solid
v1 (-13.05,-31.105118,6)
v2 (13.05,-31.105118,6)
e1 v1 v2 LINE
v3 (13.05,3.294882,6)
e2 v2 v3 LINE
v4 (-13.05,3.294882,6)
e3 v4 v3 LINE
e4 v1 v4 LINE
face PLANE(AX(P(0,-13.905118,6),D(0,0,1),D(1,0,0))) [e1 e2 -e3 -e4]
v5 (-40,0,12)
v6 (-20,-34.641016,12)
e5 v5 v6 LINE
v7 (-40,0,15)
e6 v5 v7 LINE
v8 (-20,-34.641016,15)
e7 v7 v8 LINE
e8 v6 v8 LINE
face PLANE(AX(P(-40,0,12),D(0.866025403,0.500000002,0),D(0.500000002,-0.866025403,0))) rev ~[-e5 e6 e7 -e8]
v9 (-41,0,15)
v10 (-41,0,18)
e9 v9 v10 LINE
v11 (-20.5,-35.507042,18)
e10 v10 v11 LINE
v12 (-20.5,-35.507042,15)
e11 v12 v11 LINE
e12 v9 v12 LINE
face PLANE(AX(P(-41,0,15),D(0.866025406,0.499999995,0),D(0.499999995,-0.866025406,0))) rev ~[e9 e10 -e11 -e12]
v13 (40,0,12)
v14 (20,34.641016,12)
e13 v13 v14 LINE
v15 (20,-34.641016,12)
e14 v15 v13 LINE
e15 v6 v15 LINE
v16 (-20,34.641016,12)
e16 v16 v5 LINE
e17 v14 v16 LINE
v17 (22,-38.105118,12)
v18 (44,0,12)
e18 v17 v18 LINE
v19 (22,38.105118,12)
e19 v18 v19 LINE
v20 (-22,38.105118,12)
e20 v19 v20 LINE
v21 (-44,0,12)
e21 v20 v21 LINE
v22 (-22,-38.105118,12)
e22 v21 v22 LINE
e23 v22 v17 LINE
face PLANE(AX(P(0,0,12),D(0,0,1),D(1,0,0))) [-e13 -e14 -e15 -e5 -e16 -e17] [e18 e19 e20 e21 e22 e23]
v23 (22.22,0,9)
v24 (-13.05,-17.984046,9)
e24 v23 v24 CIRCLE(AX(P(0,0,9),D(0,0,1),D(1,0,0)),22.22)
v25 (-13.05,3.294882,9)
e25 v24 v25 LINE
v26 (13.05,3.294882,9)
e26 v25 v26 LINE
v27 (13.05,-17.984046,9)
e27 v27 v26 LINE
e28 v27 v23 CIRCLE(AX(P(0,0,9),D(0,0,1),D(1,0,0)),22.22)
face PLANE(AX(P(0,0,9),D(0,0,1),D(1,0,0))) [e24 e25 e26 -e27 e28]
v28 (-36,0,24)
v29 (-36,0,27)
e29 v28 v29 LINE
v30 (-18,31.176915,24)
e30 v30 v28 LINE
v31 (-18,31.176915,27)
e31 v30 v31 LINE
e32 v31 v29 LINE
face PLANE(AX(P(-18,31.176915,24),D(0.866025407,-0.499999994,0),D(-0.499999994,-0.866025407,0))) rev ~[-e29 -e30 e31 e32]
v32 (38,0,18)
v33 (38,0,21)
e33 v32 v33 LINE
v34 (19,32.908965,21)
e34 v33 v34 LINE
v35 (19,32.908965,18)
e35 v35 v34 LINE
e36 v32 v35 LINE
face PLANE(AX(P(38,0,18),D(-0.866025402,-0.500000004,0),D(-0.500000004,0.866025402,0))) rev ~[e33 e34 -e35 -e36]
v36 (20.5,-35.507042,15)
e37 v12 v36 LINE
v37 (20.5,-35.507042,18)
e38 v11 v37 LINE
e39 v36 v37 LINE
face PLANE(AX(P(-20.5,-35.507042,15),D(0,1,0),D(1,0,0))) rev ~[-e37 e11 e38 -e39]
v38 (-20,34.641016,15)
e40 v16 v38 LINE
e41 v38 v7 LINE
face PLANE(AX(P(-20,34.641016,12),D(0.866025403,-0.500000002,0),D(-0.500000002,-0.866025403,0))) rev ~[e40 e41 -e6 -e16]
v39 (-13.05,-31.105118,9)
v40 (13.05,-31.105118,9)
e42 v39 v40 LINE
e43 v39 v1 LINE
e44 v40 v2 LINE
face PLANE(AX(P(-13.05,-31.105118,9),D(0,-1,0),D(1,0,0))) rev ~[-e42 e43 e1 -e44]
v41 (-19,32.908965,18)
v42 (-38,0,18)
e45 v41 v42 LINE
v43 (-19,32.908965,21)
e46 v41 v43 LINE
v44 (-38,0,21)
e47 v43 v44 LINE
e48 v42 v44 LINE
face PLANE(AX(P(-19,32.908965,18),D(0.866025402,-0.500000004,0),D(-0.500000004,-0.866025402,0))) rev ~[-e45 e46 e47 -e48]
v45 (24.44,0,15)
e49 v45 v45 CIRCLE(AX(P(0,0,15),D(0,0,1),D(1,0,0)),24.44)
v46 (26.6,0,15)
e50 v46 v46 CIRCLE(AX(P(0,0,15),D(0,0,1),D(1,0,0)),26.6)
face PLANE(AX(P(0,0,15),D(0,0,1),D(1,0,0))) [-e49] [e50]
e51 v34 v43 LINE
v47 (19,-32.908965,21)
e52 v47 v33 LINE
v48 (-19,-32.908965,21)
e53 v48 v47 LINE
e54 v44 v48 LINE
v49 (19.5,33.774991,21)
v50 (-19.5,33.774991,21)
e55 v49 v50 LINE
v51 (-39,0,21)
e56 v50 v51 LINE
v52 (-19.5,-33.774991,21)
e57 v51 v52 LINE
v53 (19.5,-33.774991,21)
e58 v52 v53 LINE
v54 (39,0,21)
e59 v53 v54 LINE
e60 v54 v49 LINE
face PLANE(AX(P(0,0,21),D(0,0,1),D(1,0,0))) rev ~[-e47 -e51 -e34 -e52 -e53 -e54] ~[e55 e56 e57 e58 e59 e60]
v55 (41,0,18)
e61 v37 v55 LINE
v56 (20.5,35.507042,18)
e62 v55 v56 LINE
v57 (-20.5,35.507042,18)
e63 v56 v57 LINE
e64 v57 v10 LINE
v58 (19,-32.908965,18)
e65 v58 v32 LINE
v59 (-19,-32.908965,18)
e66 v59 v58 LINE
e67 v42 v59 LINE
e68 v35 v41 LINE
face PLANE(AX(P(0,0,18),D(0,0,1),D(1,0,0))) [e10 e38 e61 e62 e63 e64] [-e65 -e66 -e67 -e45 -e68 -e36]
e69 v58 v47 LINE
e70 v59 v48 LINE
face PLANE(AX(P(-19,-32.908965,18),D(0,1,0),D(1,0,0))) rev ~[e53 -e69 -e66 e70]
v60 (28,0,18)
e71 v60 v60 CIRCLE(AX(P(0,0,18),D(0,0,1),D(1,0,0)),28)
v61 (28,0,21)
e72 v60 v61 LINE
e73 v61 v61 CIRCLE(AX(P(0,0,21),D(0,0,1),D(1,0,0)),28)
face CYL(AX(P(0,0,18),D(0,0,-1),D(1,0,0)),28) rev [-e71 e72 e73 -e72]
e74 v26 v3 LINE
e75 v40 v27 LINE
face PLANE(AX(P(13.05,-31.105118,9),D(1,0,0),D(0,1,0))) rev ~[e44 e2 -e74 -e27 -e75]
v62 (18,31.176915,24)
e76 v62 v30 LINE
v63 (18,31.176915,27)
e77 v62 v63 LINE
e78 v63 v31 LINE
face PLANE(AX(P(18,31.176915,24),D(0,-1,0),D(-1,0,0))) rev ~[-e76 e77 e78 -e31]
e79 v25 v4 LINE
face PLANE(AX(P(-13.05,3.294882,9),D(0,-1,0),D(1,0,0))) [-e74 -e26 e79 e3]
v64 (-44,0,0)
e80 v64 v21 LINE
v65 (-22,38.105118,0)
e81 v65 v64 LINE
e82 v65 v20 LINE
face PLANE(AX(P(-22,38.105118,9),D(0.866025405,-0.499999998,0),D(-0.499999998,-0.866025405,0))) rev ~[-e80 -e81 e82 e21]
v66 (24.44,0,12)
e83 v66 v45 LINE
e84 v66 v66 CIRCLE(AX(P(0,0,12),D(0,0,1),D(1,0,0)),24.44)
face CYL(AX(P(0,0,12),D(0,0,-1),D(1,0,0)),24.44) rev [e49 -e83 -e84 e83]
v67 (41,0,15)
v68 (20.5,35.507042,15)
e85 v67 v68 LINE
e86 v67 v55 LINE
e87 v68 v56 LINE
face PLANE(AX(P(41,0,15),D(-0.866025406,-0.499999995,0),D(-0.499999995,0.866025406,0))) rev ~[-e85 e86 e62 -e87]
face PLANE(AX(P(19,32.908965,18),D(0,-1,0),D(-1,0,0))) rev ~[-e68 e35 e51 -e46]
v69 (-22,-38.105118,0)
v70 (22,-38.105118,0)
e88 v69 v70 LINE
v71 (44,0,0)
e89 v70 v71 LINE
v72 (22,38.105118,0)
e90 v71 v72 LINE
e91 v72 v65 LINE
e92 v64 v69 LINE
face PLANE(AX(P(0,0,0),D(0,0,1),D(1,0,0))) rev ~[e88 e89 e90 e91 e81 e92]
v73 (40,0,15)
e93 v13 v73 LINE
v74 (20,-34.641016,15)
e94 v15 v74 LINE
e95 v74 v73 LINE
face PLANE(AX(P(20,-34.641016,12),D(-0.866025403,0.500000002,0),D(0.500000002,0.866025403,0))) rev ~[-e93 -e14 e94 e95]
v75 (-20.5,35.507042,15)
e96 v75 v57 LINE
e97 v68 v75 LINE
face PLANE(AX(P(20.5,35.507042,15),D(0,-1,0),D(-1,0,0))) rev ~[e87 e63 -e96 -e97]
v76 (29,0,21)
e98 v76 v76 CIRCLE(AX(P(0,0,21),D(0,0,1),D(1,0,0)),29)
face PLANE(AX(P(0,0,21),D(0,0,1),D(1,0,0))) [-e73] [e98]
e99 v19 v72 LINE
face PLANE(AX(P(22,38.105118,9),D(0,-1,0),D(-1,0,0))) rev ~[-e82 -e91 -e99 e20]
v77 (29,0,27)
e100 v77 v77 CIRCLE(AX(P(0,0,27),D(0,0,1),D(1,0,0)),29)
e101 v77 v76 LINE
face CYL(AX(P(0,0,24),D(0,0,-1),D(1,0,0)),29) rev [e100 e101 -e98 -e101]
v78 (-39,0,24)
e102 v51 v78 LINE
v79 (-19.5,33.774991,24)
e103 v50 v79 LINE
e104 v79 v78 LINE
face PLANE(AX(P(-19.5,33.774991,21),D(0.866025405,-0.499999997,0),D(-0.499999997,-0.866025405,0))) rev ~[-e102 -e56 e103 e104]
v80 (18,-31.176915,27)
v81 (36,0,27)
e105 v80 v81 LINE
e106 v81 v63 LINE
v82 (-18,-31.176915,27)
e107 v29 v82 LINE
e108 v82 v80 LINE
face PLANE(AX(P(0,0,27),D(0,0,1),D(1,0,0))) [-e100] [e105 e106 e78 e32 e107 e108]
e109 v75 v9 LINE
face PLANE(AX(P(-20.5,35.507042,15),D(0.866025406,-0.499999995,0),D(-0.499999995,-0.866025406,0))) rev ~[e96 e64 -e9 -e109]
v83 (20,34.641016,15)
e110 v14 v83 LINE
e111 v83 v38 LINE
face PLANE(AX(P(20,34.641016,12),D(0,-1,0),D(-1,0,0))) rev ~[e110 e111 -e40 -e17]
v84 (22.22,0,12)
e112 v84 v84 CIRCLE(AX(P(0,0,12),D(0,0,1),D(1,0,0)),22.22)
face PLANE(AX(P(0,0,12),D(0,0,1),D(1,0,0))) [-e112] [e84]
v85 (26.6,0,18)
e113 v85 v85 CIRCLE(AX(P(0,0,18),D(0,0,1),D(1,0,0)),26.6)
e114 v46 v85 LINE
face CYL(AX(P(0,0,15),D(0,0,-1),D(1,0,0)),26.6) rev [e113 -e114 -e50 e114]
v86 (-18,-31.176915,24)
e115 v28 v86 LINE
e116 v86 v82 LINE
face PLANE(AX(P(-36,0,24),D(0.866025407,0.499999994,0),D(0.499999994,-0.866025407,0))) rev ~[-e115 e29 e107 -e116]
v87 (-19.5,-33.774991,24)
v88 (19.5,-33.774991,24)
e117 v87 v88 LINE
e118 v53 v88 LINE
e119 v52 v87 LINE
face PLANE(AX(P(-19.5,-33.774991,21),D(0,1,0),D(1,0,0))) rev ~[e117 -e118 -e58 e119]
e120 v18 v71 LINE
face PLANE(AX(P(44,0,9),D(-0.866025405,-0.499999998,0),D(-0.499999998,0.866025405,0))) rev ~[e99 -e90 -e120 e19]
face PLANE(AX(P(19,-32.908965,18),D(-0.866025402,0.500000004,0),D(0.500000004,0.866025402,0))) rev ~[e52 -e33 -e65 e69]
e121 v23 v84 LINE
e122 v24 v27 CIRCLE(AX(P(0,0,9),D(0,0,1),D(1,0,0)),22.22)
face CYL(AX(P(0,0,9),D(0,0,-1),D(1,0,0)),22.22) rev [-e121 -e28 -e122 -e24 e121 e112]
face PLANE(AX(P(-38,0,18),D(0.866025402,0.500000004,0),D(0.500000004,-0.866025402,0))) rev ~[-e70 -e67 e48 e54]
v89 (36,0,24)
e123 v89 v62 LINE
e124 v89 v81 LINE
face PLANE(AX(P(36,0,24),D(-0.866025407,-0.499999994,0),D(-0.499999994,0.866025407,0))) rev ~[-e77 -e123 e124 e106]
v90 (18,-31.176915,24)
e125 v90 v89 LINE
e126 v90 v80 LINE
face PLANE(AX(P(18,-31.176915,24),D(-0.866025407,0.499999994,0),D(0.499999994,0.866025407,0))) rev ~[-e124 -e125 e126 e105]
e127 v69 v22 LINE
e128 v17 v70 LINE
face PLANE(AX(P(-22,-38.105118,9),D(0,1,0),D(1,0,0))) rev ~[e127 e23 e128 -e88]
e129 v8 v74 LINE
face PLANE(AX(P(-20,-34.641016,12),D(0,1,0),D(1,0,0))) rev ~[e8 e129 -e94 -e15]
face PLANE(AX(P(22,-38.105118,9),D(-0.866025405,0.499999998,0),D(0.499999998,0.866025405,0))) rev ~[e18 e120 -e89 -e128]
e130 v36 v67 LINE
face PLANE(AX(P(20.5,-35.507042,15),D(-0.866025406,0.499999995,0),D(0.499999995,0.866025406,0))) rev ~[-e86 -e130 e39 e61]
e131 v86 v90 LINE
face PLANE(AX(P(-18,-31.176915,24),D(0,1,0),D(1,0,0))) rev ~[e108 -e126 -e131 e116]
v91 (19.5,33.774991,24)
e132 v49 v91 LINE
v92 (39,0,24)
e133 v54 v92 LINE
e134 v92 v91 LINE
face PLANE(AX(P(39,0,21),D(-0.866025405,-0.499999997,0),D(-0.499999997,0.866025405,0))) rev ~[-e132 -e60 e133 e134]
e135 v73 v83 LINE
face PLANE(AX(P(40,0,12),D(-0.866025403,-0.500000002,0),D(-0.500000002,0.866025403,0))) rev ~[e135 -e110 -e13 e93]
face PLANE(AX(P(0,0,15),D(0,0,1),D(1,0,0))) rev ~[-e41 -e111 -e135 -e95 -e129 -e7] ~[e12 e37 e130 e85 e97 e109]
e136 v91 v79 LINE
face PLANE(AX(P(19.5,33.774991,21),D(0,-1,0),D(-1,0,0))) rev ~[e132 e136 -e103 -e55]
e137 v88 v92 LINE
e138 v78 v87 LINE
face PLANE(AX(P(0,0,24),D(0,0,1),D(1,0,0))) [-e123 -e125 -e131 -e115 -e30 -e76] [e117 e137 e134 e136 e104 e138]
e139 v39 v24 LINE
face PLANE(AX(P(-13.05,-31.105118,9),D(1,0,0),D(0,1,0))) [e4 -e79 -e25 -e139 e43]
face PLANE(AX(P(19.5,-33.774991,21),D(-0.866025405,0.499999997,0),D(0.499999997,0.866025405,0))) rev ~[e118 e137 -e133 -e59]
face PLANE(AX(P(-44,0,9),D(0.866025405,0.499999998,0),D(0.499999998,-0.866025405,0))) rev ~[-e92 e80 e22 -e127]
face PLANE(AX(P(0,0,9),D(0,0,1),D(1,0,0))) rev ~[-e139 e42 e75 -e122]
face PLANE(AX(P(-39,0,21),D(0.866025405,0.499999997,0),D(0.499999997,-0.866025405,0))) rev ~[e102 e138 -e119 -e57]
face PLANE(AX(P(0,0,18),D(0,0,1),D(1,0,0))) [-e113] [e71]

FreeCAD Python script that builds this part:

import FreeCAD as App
import Part
import Sketcher

V = App.Vector
Q = App.Units.Quantity


def add_polygon(sketch, points):
    """Adds a closed chain of lines whose ends are joined by coincident constraints."""
    first, n = sketch.GeometryCount, len(points)
    for a, b in zip(points, points[1:] + points[:1]):
        sketch.addGeometry(Part.LineSegment(App.Vector(*a, 0), App.Vector(*b, 0)), False)
    for i in range(n):
        sketch.addConstraint(Sketcher.Constraint("Coincident", first + i, 2, first + (i + 1) % n, 1))

doc = App.newDocument("Part")
body = doc.addObject("PartDesign::Body", "Body")

sketch1 = body.newObject("Sketcher::SketchObject", "Sketch")
sketch1.AttachmentSupport = (doc.getObject("XY_Plane"), [""])
sketch1.MapMode = "FlatFace"
add_polygon(sketch1, [(44, 0), (22, 38), (-22, 38), (-44, 0), (-22, -38), (22, -38)])
sketch1.addConstraint(Sketcher.Constraint("Horizontal", 1))
sketch1.addConstraint(Sketcher.Constraint("Horizontal", 4))
sketch1.addConstraint(Sketcher.Constraint("Symmetric", 0, 2, 3, 2, -1, 1))
sketch1.addConstraint(Sketcher.Constraint("Symmetric", 2, 2, 5, 2, -1, 1))
sketch1.addConstraint(Sketcher.Constraint("PointOnObject", 2, 2, -1))
sketch1.addConstraint(Sketcher.Constraint("Parallel", 2, 5))
sketch1.addConstraint(Sketcher.Constraint("Vertical", 1, 2, 3, 2))
sketch1.addConstraint(Sketcher.Constraint("DistanceX", 1, 2, 1, 1, Q("44 mm")))
sketch1.addConstraint(Sketcher.Constraint("Angle", 0, Q("120 deg")))
sketch1.addConstraint(Sketcher.Constraint("Distance", 0, Q("44 mm")))
pad1 = body.newObject("PartDesign::Pad", "Pad")
pad1.Profile = sketch1
pad1.Length = 9

sketch2 = body.newObject("Sketcher::SketchObject", "Sketch001")
sketch2.AttachmentSupport = (doc.getObject("XY_Plane"), [""])
sketch2.MapMode = "FlatFace"
sketch2.AttachmentOffset = App.Placement(V(0, 0, 9), App.Rotation())
add_polygon(sketch2, [(-13, 3), (-13, -31), (13, -31), (13, 3)])
sketch2.addConstraint(Sketcher.Constraint("Vertical", 0))
sketch2.addConstraint(Sketcher.Constraint("Horizontal", 1))
sketch2.addConstraint(Sketcher.Constraint("Vertical", 2))
sketch2.addConstraint(Sketcher.Constraint("Horizontal", 3))
sketch2.addConstraint(Sketcher.Constraint("DistanceX", 1, 1, 1, 2, Q("26.1 mm")))
sketch2.addConstraint(Sketcher.Constraint("DistanceY", 0, 2, 0, 1, Q("34.4 mm")))
sketch2.addConstraint(Sketcher.Constraint("DistanceX", 0, 2, -1, 1, Q("13.05 mm")))
sketch2.addConstraint(Sketcher.Constraint("DistanceY", 0, 2, -1, 1, Q("31.105118 mm")))
pocket1 = body.newObject("PartDesign::Pocket", "Pocket")
pocket1.Profile = sketch2
pocket1.Length = 3

sketch3 = body.newObject("Sketcher::SketchObject", "Sketch002")
sketch3.AttachmentSupport = (doc.getObject("XY_Plane"), [""])
sketch3.MapMode = "FlatFace"
sketch3.AttachmentOffset = App.Placement(V(0, 0, 9), App.Rotation())
add_polygon(sketch3, [(22, 38), (-22, 38), (-44, 0), (-22, -38), (22, -38), (44, 0)])
sketch3.addGeometry(Part.Circle(V(0, 0, 0), V(0, 0, 1), 22), False)
sketch3.addConstraint(Sketcher.Constraint("Horizontal", 0))
sketch3.addConstraint(Sketcher.Constraint("Horizontal", 3))
sketch3.addConstraint(Sketcher.Constraint("Coincident", 6, 3, -1, 1))
sketch3.addConstraint(Sketcher.Constraint("Symmetric", 0, 2, 3, 2, -1, 1))
sketch3.addConstraint(Sketcher.Constraint("Symmetric", 1, 2, 4, 2, -1, 1))
sketch3.addConstraint(Sketcher.Constraint("PointOnObject", 1, 2, -1))
sketch3.addConstraint(Sketcher.Constraint("Parallel", 2, 5))
sketch3.addConstraint(Sketcher.Constraint("Vertical", 0, 2, 2, 2))
sketch3.addConstraint(Sketcher.Constraint("Diameter", 6, Q("44.44 mm")))
sketch3.addConstraint(Sketcher.Constraint("DistanceX", 0, 2, 0, 1, Q("44 mm")))
sketch3.addConstraint(Sketcher.Constraint("Angle", 1, Q("-120 deg")))
sketch3.addConstraint(Sketcher.Constraint("Distance", 1, Q("44 mm")))
pad2 = body.newObject("PartDesign::Pad", "Pad001")
pad2.Profile = sketch3
pad2.Length = 3

sketch4 = body.newObject("Sketcher::SketchObject", "Sketch003")
sketch4.AttachmentSupport = (doc.getObject("XY_Plane"), [""])
sketch4.MapMode = "FlatFace"
sketch4.AttachmentOffset = App.Placement(V(0, 0, 12), App.Rotation())
add_polygon(sketch4, [(40, 0), (20, 35), (-20, 35), (-40, 0), (-20, -35), (20, -35)])
sketch4.addGeometry(Part.Circle(V(0, 0, 0), V(0, 0, 1), 24), False)
sketch4.addConstraint(Sketcher.Constraint("Horizontal", 1))
sketch4.addConstraint(Sketcher.Constraint("Horizontal", 4))
sketch4.addConstraint(Sketcher.Constraint("Coincident", 6, 3, -1, 1))
sketch4.addConstraint(Sketcher.Constraint("Symmetric", 0, 2, 3, 2, -1, 1))
sketch4.addConstraint(Sketcher.Constraint("Symmetric", 2, 2, 5, 2, -1, 1))
sketch4.addConstraint(Sketcher.Constraint("PointOnObject", 2, 2, -1))
sketch4.addConstraint(Sketcher.Constraint("Parallel", 2, 5))
sketch4.addConstraint(Sketcher.Constraint("Vertical", 1, 2, 3, 2))
sketch4.addConstraint(Sketcher.Constraint("Diameter", 6, Q("48.88 mm")))
sketch4.addConstraint(Sketcher.Constraint("DistanceX", 1, 2, 1, 1, Q("40 mm")))
sketch4.addConstraint(Sketcher.Constraint("Angle", 0, Q("120 deg")))
sketch4.addConstraint(Sketcher.Constraint("Distance", 0, Q("40 mm")))
pad3 = body.newObject("PartDesign::Pad", "Pad002")
pad3.Profile = sketch4
pad3.Length = 3

sketch5 = body.newObject("Sketcher::SketchObject", "Sketch004")
sketch5.AttachmentSupport = (doc.getObject("XY_Plane"), [""])
sketch5.MapMode = "FlatFace"
sketch5.AttachmentOffset = App.Placement(V(0, 0, 15), App.Rotation())
add_polygon(sketch5, [(41, 0), (20, 36), (-20, 36), (-41, 0), (-20, -36), (20, -36)])
sketch5.addGeometry(Part.Circle(V(0, 0, 0), V(0, 0, 1), 27), False)
sketch5.addConstraint(Sketcher.Constraint("Horizontal", 1))
sketch5.addConstraint(Sketcher.Constraint("Horizontal", 4))
sketch5.addConstraint(Sketcher.Constraint("Coincident", 6, 3, -1, 1))
sketch5.addConstraint(Sketcher.Constraint("Symmetric", 0, 2, 3, 2, -1, 1))
sketch5.addConstraint(Sketcher.Constraint("Symmetric", 2, 2, 5, 2, -1, 1))
sketch5.addConstraint(Sketcher.Constraint("PointOnObject", 2, 2, -1))
sketch5.addConstraint(Sketcher.Constraint("Parallel", 2, 5))
sketch5.addConstraint(Sketcher.Constraint("Vertical", 1, 2, 3, 2))
sketch5.addConstraint(Sketcher.Constraint("Diameter", 6, Q("53.2 mm")))
sketch5.addConstraint(Sketcher.Constraint("DistanceX", 1, 2, 1, 1, Q("41 mm")))
sketch5.addConstraint(Sketcher.Constraint("Angle", 0, Q("120 deg")))
sketch5.addConstraint(Sketcher.Constraint("Distance", 0, Q("41 mm")))
pad4 = body.newObject("PartDesign::Pad", "Pad003")
pad4.Profile = sketch5
pad4.Length = 3

sketch6 = body.newObject("Sketcher::SketchObject", "Sketch005")
sketch6.AttachmentSupport = (doc.getObject("XY_Plane"), [""])
sketch6.MapMode = "FlatFace"
sketch6.AttachmentOffset = App.Placement(V(0, 0, 18), App.Rotation())
add_polygon(sketch6, [(19, 33), (-19, 33), (-38, 0), (-19, -33), (19, -33), (38, 0)])
sketch6.addGeometry(Part.Circle(V(0, 0, 0), V(0, 0, 1), 28), False)
sketch6.addConstraint(Sketcher.Constraint("Horizontal", 0))
sketch6.addConstraint(Sketcher.Constraint("Horizontal", 3))
sketch6.addConstraint(Sketcher.Constraint("Coincident", 6, 3, -1, 1))
sketch6.addConstraint(Sketcher.Constraint("Symmetric", 0, 2, 3, 2, -1, 1))
sketch6.addConstraint(Sketcher.Constraint("Symmetric", 1, 2, 4, 2, -1, 1))
sketch6.addConstraint(Sketcher.Constraint("PointOnObject", 1, 2, -1))
sketch6.addConstraint(Sketcher.Constraint("Parallel", 2, 5))
sketch6.addConstraint(Sketcher.Constraint("Vertical", 0, 2, 2, 2))
sketch6.addConstraint(Sketcher.Constraint("Diameter", 6, Q("56 mm")))
sketch6.addConstraint(Sketcher.Constraint("DistanceX", 0, 2, 0, 1, Q("38 mm")))
sketch6.addConstraint(Sketcher.Constraint("Angle", 1, Q("-120 deg")))
sketch6.addConstraint(Sketcher.Constraint("Distance", 1, Q("38 mm")))
pad5 = body.newObject("PartDesign::Pad", "Pad004")
pad5.Profile = sketch6
pad5.Length = 3

sketch7 = body.newObject("Sketcher::SketchObject", "Sketch006")
sketch7.AttachmentSupport = (doc.getObject("XY_Plane"), [""])
sketch7.MapMode = "FlatFace"
sketch7.AttachmentOffset = App.Placement(V(0, 0, 21), App.Rotation())
add_polygon(sketch7, [(39, 0), (20, 34), (-20, 34), (-39, 0), (-20, -34), (20, -34)])
sketch7.addGeometry(Part.Circle(V(0, 0, 0), V(0, 0, 1), 29), False)
sketch7.addConstraint(Sketcher.Constraint("Horizontal", 1))
sketch7.addConstraint(Sketcher.Constraint("Horizontal", 4))
sketch7.addConstraint(Sketcher.Constraint("Coincident", 6, 3, -1, 1))
sketch7.addConstraint(Sketcher.Constraint("Symmetric", 0, 2, 3, 2, -1, 1))
sketch7.addConstraint(Sketcher.Constraint("Symmetric", 2, 2, 5, 2, -1, 1))
sketch7.addConstraint(Sketcher.Constraint("PointOnObject", 2, 2, -1))
sketch7.addConstraint(Sketcher.Constraint("Parallel", 2, 5))
sketch7.addConstraint(Sketcher.Constraint("Vertical", 1, 2, 3, 2))
sketch7.addConstraint(Sketcher.Constraint("Diameter", 6, Q("58 mm")))
sketch7.addConstraint(Sketcher.Constraint("DistanceX", 1, 2, 1, 1, Q("39 mm")))
sketch7.addConstraint(Sketcher.Constraint("Angle", 0, Q("120 deg")))
sketch7.addConstraint(Sketcher.Constraint("Distance", 0, Q("39 mm")))
pad6 = body.newObject("PartDesign::Pad", "Pad005")
pad6.Profile = sketch7
pad6.Length = 3

sketch8 = body.newObject("Sketcher::SketchObject", "Sketch007")
sketch8.AttachmentSupport = (doc.getObject("XY_Plane"), [""])
sketch8.MapMode = "FlatFace"
sketch8.AttachmentOffset = App.Placement(V(0, 0, 24), App.Rotation())
add_polygon(sketch8, [(36, 0), (18, 31), (-18, 31), (-36, 0), (-18, -31), (18, -31)])
sketch8.addGeometry(Part.Circle(V(0, 0, 0), V(0, 0, 1), 29), False)
sketch8.addConstraint(Sketcher.Constraint("Horizontal", 1))
sketch8.addConstraint(Sketcher.Constraint("Horizontal", 4))
sketch8.addConstraint(Sketcher.Constraint("Coincident", 6, 3, -1, 1))
sketch8.addConstraint(Sketcher.Constraint("Symmetric", 0, 2, 3, 2, -1, 1))
sketch8.addConstraint(Sketcher.Constraint("Symmetric", 2, 2, 5, 2, -1, 1))
sketch8.addConstraint(Sketcher.Constraint("PointOnObject", 2, 2, -1))
sketch8.addConstraint(Sketcher.Constraint("Parallel", 2, 5))
sketch8.addConstraint(Sketcher.Constraint("Vertical", 1, 2, 3, 2))
sketch8.addConstraint(Sketcher.Constraint("Diameter", 6, Q("58 mm")))
sketch8.addConstraint(Sketcher.Constraint("DistanceX", 1, 2, 1, 1, Q("36 mm")))
sketch8.addConstraint(Sketcher.Constraint("Angle", 0, Q("120 deg")))
sketch8.addConstraint(Sketcher.Constraint("Distance", 0, Q("36 mm")))
pad7 = body.newObject("PartDesign::Pad", "Pad006")
pad7.Profile = sketch8
pad7.Length = 3

doc.recompute()
